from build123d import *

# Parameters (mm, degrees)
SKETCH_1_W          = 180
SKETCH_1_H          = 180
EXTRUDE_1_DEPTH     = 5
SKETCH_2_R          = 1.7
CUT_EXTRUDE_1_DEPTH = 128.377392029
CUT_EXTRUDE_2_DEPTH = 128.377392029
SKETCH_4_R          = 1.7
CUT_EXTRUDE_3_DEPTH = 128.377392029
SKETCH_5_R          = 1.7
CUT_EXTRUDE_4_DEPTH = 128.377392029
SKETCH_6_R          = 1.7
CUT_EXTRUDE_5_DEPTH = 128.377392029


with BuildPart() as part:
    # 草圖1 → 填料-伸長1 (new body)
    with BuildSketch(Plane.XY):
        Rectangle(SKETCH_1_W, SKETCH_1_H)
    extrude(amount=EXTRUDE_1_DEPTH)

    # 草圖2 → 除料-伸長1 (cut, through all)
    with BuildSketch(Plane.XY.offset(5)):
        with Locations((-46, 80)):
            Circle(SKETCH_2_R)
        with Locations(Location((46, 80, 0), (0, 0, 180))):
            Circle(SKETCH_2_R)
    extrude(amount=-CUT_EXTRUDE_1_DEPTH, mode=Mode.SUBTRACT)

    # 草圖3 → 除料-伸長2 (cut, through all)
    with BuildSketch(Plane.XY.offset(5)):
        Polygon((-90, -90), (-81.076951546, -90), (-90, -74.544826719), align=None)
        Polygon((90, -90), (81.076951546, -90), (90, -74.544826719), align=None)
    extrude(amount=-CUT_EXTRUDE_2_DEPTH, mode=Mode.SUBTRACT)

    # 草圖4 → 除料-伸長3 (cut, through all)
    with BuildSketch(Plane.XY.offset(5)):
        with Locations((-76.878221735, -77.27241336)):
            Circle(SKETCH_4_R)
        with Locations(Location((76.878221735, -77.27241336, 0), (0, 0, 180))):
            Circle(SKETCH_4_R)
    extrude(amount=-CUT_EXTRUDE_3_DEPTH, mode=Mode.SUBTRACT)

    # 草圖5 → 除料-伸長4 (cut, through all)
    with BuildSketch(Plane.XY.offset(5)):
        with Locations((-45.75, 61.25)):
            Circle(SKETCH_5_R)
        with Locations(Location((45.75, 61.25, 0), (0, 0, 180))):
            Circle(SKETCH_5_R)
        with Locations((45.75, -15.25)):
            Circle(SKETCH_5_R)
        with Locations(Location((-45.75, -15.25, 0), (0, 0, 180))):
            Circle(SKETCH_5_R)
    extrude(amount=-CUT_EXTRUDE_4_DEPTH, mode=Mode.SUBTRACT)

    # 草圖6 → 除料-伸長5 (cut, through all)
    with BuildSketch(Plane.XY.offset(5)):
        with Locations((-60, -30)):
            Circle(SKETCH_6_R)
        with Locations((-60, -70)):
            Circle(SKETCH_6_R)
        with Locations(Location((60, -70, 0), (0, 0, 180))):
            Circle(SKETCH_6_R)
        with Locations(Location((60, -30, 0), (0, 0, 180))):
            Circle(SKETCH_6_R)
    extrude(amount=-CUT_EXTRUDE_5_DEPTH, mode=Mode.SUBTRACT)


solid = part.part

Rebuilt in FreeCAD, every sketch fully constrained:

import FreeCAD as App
import Part
import Sketcher
from FreeCAD import Vector
Q = App.Units.Quantity


def add_polygon(sketch, points):
    """Adds a closed chain of lines whose ends are joined by coincident constraints."""
    first, n = sketch.GeometryCount, len(points)
    for a, b in zip(points, points[1:] + points[:1]):
        sketch.addGeometry(Part.LineSegment(App.Vector(*a, 0), App.Vector(*b, 0)), False)
    for i in range(n):
        sketch.addConstraint(Sketcher.Constraint("Coincident", first + i, 2, first + (i + 1) % n, 1))

doc = App.newDocument("Part")
body = doc.addObject("PartDesign::Body", "Body")

sketch1 = body.newObject("Sketcher::SketchObject", "Sketch")
sketch1.AttachmentSupport = (doc.getObject("XY_Plane"), [""])
sketch1.MapMode = "FlatFace"
add_polygon(sketch1, [(-90, 90), (-90, -90), (90, -90), (90, 90)])
sketch1.addConstraint([
    Sketcher.Constraint("Vertical", 0),
    Sketcher.Constraint("Horizontal", 1),
    Sketcher.Constraint("Vertical", 2),
    Sketcher.Constraint("Horizontal", 3),
    Sketcher.Constraint("Symmetric", 0, 2, 2, 2, -1, 1),
    Sketcher.Constraint("Equal", 3, 0),
    Sketcher.Constraint("DistanceX", 1, 1, 1, 2, 180.0),
])
pad1 = body.newObject("PartDesign::Pad", "Pad")
pad1.Profile = sketch1
pad1.Length = 5

sketch2 = body.newObject("Sketcher::SketchObject", "Sketch001")
sketch2.AttachmentSupport = (doc.getObject("XY_Plane"), [""])
sketch2.MapMode = "FlatFace"
sketch2.AttachmentOffset = App.Placement(Vector(0, 0, 5), App.Rotation())
sketch2.addGeometry([
    Part.Circle(Vector(-46, 80, 0), Vector(0, 0, 1), 1.7),
    Part.Circle(Vector(46, 80, 0), Vector(0, 0, 1), 1.7),
], False)
sketch2.addConstraint([
    Sketcher.Constraint("Equal", 0, 1),
    Sketcher.Constraint("Symmetric", 0, 3, 1, 3, -2),
    Sketcher.Constraint("Diameter", 0, 3.4),
    Sketcher.Constraint("DistanceX", 0, 3, -1, 1, 46.0),
    Sketcher.Constraint("DistanceY", -1, 1, 0, 3, 80.0),
])
pocket1 = body.newObject("PartDesign::Pocket", "Pocket")
pocket1.Profile = sketch2
pocket1.Type = "ThroughAll"

sketch3 = body.newObject("Sketcher::SketchObject", "Sketch002")
sketch3.AttachmentSupport = (doc.getObject("XY_Plane"), [""])
sketch3.MapMode = "FlatFace"
sketch3.AttachmentOffset = App.Placement(Vector(0, 0, 5), App.Rotation())
add_polygon(sketch3, [(-90, -90), (-81, -90), (-90, -75)])
add_polygon(sketch3, [(81, -90), (90, -90), (90, -75)])
sketch3.addConstraint([
    Sketcher.Constraint("Horizontal", 0),
    Sketcher.Constraint("Vertical", 2),
    Sketcher.Constraint("Horizontal", 3),
    Sketcher.Constraint("Vertical", 4),
    Sketcher.Constraint("Symmetric", 2, 2, 3, 2, -2),
    Sketcher.Constraint("Horizontal", 1, 2, 4, 2),
    Sketcher.Constraint("Equal", 0, 3),
    Sketcher.Constraint("Angle", 1, Q("120 deg")),
    Sketcher.Constraint("DistanceY", 0, 2, -1, 1, 90.0),
    Sketcher.Constraint("DistanceX", 1, 2, -1, 1, 90.0),
    Sketcher.Constraint("DistanceX", 0, 1, 0, 2, 8.923048),
])
pocket2 = body.newObject("PartDesign::Pocket", "Pocket001")
pocket2.Profile = sketch3
pocket2.Type = "ThroughAll"

sketch4 = body.newObject("Sketcher::SketchObject", "Sketch003")
sketch4.AttachmentSupport = (doc.getObject("XY_Plane"), [""])
sketch4.MapMode = "FlatFace"
sketch4.AttachmentOffset = App.Placement(Vector(0, 0, 5), App.Rotation())
sketch4.addGeometry([
    Part.Circle(Vector(-76.9, -77.3, 0), Vector(0, 0, 1), 1.7),
    Part.Circle(Vector(76.9, -77.3, 0), Vector(0, 0, 1), 1.7),
], False)
sketch4.addConstraint([
    Sketcher.Constraint("Equal", 0, 1),
    Sketcher.Constraint("Symmetric", 0, 3, 1, 3, -2),
    Sketcher.Constraint("Diameter", 0, 3.4),
    Sketcher.Constraint("DistanceX", 0, 3, -1, 1, 76.878222),
    Sketcher.Constraint("DistanceY", 0, 3, -1, 1, 77.272413),
])
pocket3 = body.newObject("PartDesign::Pocket", "Pocket002")
pocket3.Profile = sketch4
pocket3.Type = "ThroughAll"

sketch5 = body.newObject("Sketcher::SketchObject", "Sketch004")
sketch5.AttachmentSupport = (doc.getObject("XY_Plane"), [""])
sketch5.MapMode = "FlatFace"
sketch5.AttachmentOffset = App.Placement(Vector(0, 0, 5), App.Rotation())
sketch5.addGeometry([
    Part.Circle(Vector(-45.8, 61.2, 0), Vector(0, 0, 1), 1.7),
    Part.Circle(Vector(45.8, 61.2, 0), Vector(0, 0, 1), 1.7),
    Part.Circle(Vector(45.8, -15.2, 0), Vector(0, 0, 1), 1.7),
    Part.Circle(Vector(-45.8, -15.2, 0), Vector(0, 0, 1), 1.7),
], False)
sketch5.addConstraint([
    Sketcher.Constraint("Equal", 0, 1),
    Sketcher.Constraint("Equal", 1, 2),
    Sketcher.Constraint("Equal", 2, 3),
    Sketcher.Constraint("Symmetric", 0, 3, 1, 3, -2),
    Sketcher.Constraint("Symmetric", 2, 3, 3, 3, -2),
    Sketcher.Constraint("Vertical", 1, 3, 2, 3),
    Sketcher.Constraint("Diameter", 0, 3.4),
    Sketcher.Constraint("DistanceX", 0, 3, 1, 3, 91.5),
    Sketcher.Constraint("DistanceY", 2, 3, 1, 3, 76.5),
    Sketcher.Constraint("DistanceY", -1, 1, 0, 3, 61.25),
])
pocket4 = body.newObject("PartDesign::Pocket", "Pocket003")
pocket4.Profile = sketch5
pocket4.Type = "ThroughAll"

sketch6 = body.newObject("Sketcher::SketchObject", "Sketch005")
sketch6.AttachmentSupport = (doc.getObject("XY_Plane"), [""])
sketch6.MapMode = "FlatFace"
sketch6.AttachmentOffset = App.Placement(Vector(0, 0, 5), App.Rotation())
sketch6.addGeometry([
    Part.Circle(Vector(-60, -30, 0), Vector(0, 0, 1), 1.7),
    Part.Circle(Vector(-60, -70, 0), Vector(0, 0, 1), 1.7),
    Part.Circle(Vector(60, -70, 0), Vector(0, 0, 1), 1.7),
    Part.Circle(Vector(60, -30, 0), Vector(0, 0, 1), 1.7),
], False)
sketch6.addConstraint([
    Sketcher.Constraint("Equal", 0, 1),
    Sketcher.Constraint("Equal", 1, 2),
    Sketcher.Constraint("Equal", 2, 3),
    Sketcher.Constraint("Symmetric", 1, 3, 2, 3, -2),
    Sketcher.Constraint("Symmetric", 0, 3, 3, 3, -2),
    Sketcher.Constraint("Vertical", 0, 3, 1, 3),
    Sketcher.Constraint("Diameter", 0, 3.4),
    Sketcher.Constraint("DistanceX", 0, 3, -1, 1, 60.0),
    Sketcher.Constraint("DistanceY", 0, 3, -1, 1, 30.0),
    Sketcher.Constraint("DistanceY", 1, 3, -1, 1, 70.0),
])
pocket5 = body.newObject("PartDesign::Pocket", "Pocket004")
pocket5.Profile = sketch6
pocket5.Type = "ThroughAll"

doc.recompute()
